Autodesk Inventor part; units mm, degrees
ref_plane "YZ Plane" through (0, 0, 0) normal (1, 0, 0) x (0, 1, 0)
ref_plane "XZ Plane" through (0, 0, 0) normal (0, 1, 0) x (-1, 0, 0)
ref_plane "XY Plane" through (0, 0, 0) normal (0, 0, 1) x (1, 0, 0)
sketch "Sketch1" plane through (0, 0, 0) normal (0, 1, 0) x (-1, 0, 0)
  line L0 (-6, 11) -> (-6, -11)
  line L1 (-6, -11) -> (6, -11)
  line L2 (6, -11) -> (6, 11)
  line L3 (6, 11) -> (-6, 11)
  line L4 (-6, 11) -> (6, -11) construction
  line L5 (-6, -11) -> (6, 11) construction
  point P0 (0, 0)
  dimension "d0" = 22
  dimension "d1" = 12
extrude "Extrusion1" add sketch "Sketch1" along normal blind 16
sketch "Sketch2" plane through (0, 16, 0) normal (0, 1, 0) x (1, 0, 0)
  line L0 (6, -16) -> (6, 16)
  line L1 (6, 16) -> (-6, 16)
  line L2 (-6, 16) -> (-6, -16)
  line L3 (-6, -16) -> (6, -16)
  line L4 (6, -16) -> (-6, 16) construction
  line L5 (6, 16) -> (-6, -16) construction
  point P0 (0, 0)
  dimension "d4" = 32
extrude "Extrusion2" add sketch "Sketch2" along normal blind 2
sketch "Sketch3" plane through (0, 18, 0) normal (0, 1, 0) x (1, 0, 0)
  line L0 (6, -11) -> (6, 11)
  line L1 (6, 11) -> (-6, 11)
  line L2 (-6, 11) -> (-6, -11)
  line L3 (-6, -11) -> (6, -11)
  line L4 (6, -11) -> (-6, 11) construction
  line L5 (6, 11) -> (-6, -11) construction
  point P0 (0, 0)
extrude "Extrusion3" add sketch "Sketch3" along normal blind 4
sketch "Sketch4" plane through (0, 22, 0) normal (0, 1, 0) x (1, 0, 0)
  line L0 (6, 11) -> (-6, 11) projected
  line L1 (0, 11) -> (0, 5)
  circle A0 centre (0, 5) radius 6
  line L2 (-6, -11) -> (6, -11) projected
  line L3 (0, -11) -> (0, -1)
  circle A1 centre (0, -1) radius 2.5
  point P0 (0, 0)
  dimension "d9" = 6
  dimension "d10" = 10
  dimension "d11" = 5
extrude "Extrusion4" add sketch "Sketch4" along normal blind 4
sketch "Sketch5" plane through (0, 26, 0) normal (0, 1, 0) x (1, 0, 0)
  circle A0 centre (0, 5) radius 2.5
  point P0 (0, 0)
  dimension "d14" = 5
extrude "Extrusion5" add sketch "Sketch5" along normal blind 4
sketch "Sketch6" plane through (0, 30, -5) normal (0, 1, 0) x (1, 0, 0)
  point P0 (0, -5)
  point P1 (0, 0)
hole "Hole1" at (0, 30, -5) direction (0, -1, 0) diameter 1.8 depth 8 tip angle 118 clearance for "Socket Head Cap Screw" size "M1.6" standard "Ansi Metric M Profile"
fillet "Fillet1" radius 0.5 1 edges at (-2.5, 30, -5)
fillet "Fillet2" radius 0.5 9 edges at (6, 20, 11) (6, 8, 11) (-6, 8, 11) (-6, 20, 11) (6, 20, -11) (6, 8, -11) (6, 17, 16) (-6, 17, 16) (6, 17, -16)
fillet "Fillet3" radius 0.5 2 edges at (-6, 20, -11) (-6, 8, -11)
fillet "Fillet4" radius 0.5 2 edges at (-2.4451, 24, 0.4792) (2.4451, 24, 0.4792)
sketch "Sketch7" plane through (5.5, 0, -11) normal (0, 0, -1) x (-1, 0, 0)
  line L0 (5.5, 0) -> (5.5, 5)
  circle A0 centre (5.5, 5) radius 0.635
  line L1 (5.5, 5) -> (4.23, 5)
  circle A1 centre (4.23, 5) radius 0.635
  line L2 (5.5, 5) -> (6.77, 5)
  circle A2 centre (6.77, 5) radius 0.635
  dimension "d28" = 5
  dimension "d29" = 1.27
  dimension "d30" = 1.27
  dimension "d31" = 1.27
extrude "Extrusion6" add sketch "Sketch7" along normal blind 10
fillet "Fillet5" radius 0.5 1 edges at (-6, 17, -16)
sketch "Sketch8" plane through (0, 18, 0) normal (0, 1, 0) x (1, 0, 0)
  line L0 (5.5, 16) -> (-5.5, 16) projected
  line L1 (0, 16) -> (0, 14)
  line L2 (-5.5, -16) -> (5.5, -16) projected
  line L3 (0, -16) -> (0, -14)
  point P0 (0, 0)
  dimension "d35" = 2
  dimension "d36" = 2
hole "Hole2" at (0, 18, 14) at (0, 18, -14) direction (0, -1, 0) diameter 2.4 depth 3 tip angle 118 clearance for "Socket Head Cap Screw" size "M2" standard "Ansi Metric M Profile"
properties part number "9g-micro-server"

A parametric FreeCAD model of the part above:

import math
import FreeCAD as App
import Part
import Sketcher

V = App.Vector
Q = App.Units.Quantity


def edges_at(feature, points):
    """Names of the edges that pass closest to the given points."""
    edges = feature.Shape.Edges
    near = lambda p: min(range(len(edges)), key=lambda i: edges[i].distToShape(Part.Vertex(*p))[0])
    return sorted({f"Edge{near(p) + 1}" for p in points})


def add_polygon(sketch, points):
    """Adds a closed chain of lines whose ends are joined by coincident constraints."""
    first, n = sketch.GeometryCount, len(points)
    for a, b in zip(points, points[1:] + points[:1]):
        sketch.addGeometry(Part.LineSegment(App.Vector(*a, 0), App.Vector(*b, 0)), False)
    for i in range(n):
        sketch.addConstraint(Sketcher.Constraint("Coincident", first + i, 2, first + (i + 1) % n, 1))

doc = App.newDocument("Part")
body = doc.addObject("PartDesign::Body", "Body")

# Sketch on XZ plane
sketch1 = body.newObject("Sketcher::SketchObject", "Sketch")
sketch1.AttachmentSupport = (doc.getObject("XZ_Plane"), [""])
sketch1.MapMode = "FlatFace"
add_polygon(sketch1, [(-6, 11), (6, 11), (6, -11), (-6, -11)])  # lines 0-3
sketch1.addConstraint(Sketcher.Constraint("Horizontal", 0))
sketch1.addConstraint(Sketcher.Constraint("Vertical", 1))
sketch1.addConstraint(Sketcher.Constraint("Horizontal", 2))
sketch1.addConstraint(Sketcher.Constraint("Vertical", 3))
sketch1.addConstraint(Sketcher.Constraint("Symmetric", 0, 2, 2, 2, -1, 1))
sketch1.addConstraint(Sketcher.Constraint("DistanceX", 0, 1, 0, 2, Q("12 mm")))
sketch1.addConstraint(Sketcher.Constraint("DistanceY", 1, 2, 1, 1, Q("22 mm")))
pad1 = body.newObject("PartDesign::Pad", "Pad")
pad1.Profile = sketch1
pad1.Length = 16
pad1.Reversed = True

# Sketch on XZ plane
sketch2 = body.newObject("Sketcher::SketchObject", "Sketch001")
sketch2.AttachmentSupport = (doc.getObject("XZ_Plane"), [""])
sketch2.MapMode = "FlatFace"
sketch2.AttachmentOffset = App.Placement(V(0, 0, -16), App.Rotation())
add_polygon(sketch2, [(-6, 16), (6, 16), (6, -16), (-6, -16)])  # lines 0-3
sketch2.addConstraint(Sketcher.Constraint("Horizontal", 0))
sketch2.addConstraint(Sketcher.Constraint("Vertical", 1))
sketch2.addConstraint(Sketcher.Constraint("Horizontal", 2))
sketch2.addConstraint(Sketcher.Constraint("Vertical", 3))
sketch2.addConstraint(Sketcher.Constraint("Symmetric", 0, 2, 2, 2, -1, 1))
sketch2.addConstraint(Sketcher.Constraint("DistanceY", 1, 2, 1, 1, Q("32 mm")))
sketch2.addConstraint(Sketcher.Constraint("DistanceX", 0, 1, 0, 2, Q("12 mm")))
pad2 = body.newObject("PartDesign::Pad", "Pad001")
pad2.Profile = sketch2
pad2.Length = 2
pad2.Reversed = True

# Sketch on XZ plane
sketch3 = body.newObject("Sketcher::SketchObject", "Sketch002")
sketch3.AttachmentSupport = (doc.getObject("XZ_Plane"), [""])
sketch3.MapMode = "FlatFace"
sketch3.AttachmentOffset = App.Placement(V(0, 0, -18), App.Rotation())
add_polygon(sketch3, [(-6, 11), (6, 11), (6, -11), (-6, -11)])  # lines 0-3
sketch3.addConstraint(Sketcher.Constraint("Horizontal", 0))
sketch3.addConstraint(Sketcher.Constraint("Vertical", 1))
sketch3.addConstraint(Sketcher.Constraint("Horizontal", 2))
sketch3.addConstraint(Sketcher.Constraint("Vertical", 3))
sketch3.addConstraint(Sketcher.Constraint("Symmetric", 0, 2, 2, 2, -1, 1))
sketch3.addConstraint(Sketcher.Constraint("DistanceX", 0, 1, 0, 2, Q("12 mm")))
sketch3.addConstraint(Sketcher.Constraint("DistanceY", 1, 2, 1, 1, Q("22 mm")))
pad3 = body.newObject("PartDesign::Pad", "Pad002")
pad3.Profile = sketch3
pad3.Length = 4
pad3.Reversed = True

# Sketch on XZ plane
sketch4 = body.newObject("Sketcher::SketchObject", "Sketch003")
sketch4.AttachmentSupport = (doc.getObject("XZ_Plane"), [""])
sketch4.MapMode = "FlatFace"
sketch4.AttachmentOffset = App.Placement(V(0, 0, -22), App.Rotation())
sketch4.addGeometry(Part.ArcOfCircle(Part.Circle(V(0, -5, 0), V(0, 0, 1), 6), math.radians(114.049398), math.radians(425.950602)), False)
sketch4.addGeometry(Part.ArcOfCircle(Part.Circle(V(0, 1, 0), V(0, 0, 1), 2.5), math.radians(-12.024699), math.radians(192.024699)), False)
sketch4.addConstraint(Sketcher.Constraint("Coincident", 0, 1, 1, 2))
sketch4.addConstraint(Sketcher.Constraint("Coincident", 1, 1, 0, 2))
sketch4.addConstraint(Sketcher.Constraint("Symmetric", 0, 1, 1, 1, -2))
sketch4.addConstraint(Sketcher.Constraint("Radius", 0, Q("6 mm")))
sketch4.addConstraint(Sketcher.Constraint("Radius", 1, Q("2.5 mm")))
sketch4.addConstraint(Sketcher.Constraint("DistanceY", 0, 3, -1, 1, Q("5 mm")))
sketch4.addConstraint(Sketcher.Constraint("DistanceY", 0, 3, 1, 3, Q("6 mm")))
pad4 = body.newObject("PartDesign::Pad", "Pad003")
pad4.Profile = sketch4
pad4.Length = 4
pad4.Reversed = True

# Sketch on XZ plane
sketch5 = body.newObject("Sketcher::SketchObject", "Sketch004")
sketch5.AttachmentSupport = (doc.getObject("XZ_Plane"), [""])
sketch5.MapMode = "FlatFace"
sketch5.AttachmentOffset = App.Placement(V(0, 0, -26), App.Rotation())
sketch5.addGeometry(Part.Circle(V(0, -5, 0), V(0, 0, 1), 2.5), False)
sketch5.addConstraint(Sketcher.Constraint("PointOnObject", 0, 3, -2))
sketch5.addConstraint(Sketcher.Constraint("Diameter", 0, Q("5 mm")))
sketch5.addConstraint(Sketcher.Constraint("DistanceY", 0, 3, -1, 1, Q("5 mm")))
pad5 = body.newObject("PartDesign::Pad", "Pad004")
pad5.Profile = sketch5
pad5.Length = 4
pad5.Reversed = True

# Sketch on XZ plane
sketch6 = body.newObject("Sketcher::SketchObject", "Sketch005")
sketch6.AttachmentSupport = (doc.getObject("XZ_Plane"), [""])
sketch6.MapMode = "FlatFace"
sketch6.AttachmentOffset = App.Placement(V(0, 0, -30), App.Rotation())
sketch6.addGeometry(Part.Circle(V(0, -5, 0), V(0, 0, 1), 0.9), False)
sketch6.addConstraint(Sketcher.Constraint("PointOnObject", 0, 3, -2))
sketch6.addConstraint(Sketcher.Constraint("Diameter", 0, Q("1.8 mm")))
sketch6.addConstraint(Sketcher.Constraint("DistanceY", 0, 3, -1, 1, Q("5 mm")))
doc.recompute()
hole = body.newObject("PartDesign::Hole", "Hole")
hole.Profile = sketch6
hole.ThreadType = "None"
hole.Diameter = 1.8
hole.DepthType = "Dimension"
hole.Depth = 8
hole.DrillPoint = "Angled"
hole.DrillPointAngle = 118
hole.Reversed = True
doc.recompute()

fillet = body.newObject("PartDesign::Fillet", "Fillet")
fillet.Base = (hole, edges_at(hole, [(-2.5, 30, -5)]))
fillet.Radius = 0.5
doc.recompute()

fillet2 = body.newObject("PartDesign::Fillet", "Fillet001")
fillet2.Base = (fillet, edges_at(fillet, [
    (6, 20, 11),
    (6, 8, 11),
    (-6, 8, 11),
    (-6, 20, 11),
    (6, 20, -11),
    (6, 8, -11),
    (6, 17, 16),
    (-6, 17, 16),
    (6, 17, -16),
]))
fillet2.Radius = 0.5
doc.recompute()

fillet3 = body.newObject("PartDesign::Fillet", "Fillet002")
fillet3.Base = (fillet2, edges_at(fillet2, [(-6, 20, -11), (-6, 8, -11)]))
fillet3.Radius = 0.5
doc.recompute()

fillet4 = body.newObject("PartDesign::Fillet", "Fillet003")
fillet4.Base = (fillet3, edges_at(fillet3, [(-2.445, 24, 0.479), (2.445, 24, 0.479)]))
fillet4.Radius = 0.5

# Sketch on XY plane
sketch7 = body.newObject("Sketcher::SketchObject", "Sketch006")
sketch7.AttachmentSupport = (doc.getObject("XY_Plane"), [""])
sketch7.MapMode = "FlatFace"
sketch7.AttachmentOffset = App.Placement(V(0, 0, -11), App.Rotation())
sketch7.addGeometry(Part.ArcOfCircle(Part.Circle(V(0, 5, 0), V(0, 0, 1), 0.635), math.radians(180), math.radians(360)), False)
sketch7.addGeometry(Part.ArcOfCircle(Part.Circle(V(0, 5, 0), V(0, 0, 1), 0.635), math.radians(0), math.radians(180)), False)
sketch7.addGeometry(Part.Circle(V(1.27, 5, 0), V(0, 0, 1), 0.635), False)
sketch7.addGeometry(Part.Circle(V(-1.27, 5, 0), V(0, 0, 1), 0.635), False)
sketch7.addConstraint(Sketcher.Constraint("Tangent", 0, 1, 1, 2))
sketch7.addConstraint(Sketcher.Constraint("Coincident", 1, 1, 0, 2))
sketch7.addConstraint(Sketcher.Constraint("Equal", 1, 2))
sketch7.addConstraint(Sketcher.Constraint("Equal", 2, 3))
sketch7.addConstraint(Sketcher.Constraint("Symmetric", 2, 3, 3, 3, -2))
sketch7.addConstraint(Sketcher.Constraint("Symmetric", 0, 1, 1, 1, -2))
sketch7.addConstraint(Sketcher.Constraint("Horizontal", 1, 3, 2, 3))
sketch7.addConstraint(Sketcher.Constraint("Horizontal", 3, 3, 0, 1))
sketch7.addConstraint(Sketcher.Constraint("Diameter", 2, Q("1.27 mm")))
sketch7.addConstraint(Sketcher.Constraint("DistanceY", -1, 1, 0, 3, Q("5 mm")))
sketch7.addConstraint(Sketcher.Constraint("DistanceX", -1, 1, 2, 3, Q("1.27 mm")))
pad6 = body.newObject("PartDesign::Pad", "Pad005")
pad6.Profile = sketch7
pad6.Length = 10
pad6.Reversed = True
doc.recompute()

fillet5 = body.newObject("PartDesign::Fillet", "Fillet004")
fillet5.Base = (pad6, edges_at(pad6, [(-6, 17, -16)]))
fillet5.Radius = 0.5

# Sketch on XZ plane
sketch8 = body.newObject("Sketcher::SketchObject", "Sketch007")
sketch8.AttachmentSupport = (doc.getObject("XZ_Plane"), [""])
sketch8.MapMode = "FlatFace"
sketch8.AttachmentOffset = App.Placement(V(0, 0, -18), App.Rotation())
sketch8.addGeometry(Part.Circle(V(0, 14, 0), V(0, 0, 1), 1.2), False)
sketch8.addGeometry(Part.Circle(V(0, -14, 0), V(0, 0, 1), 1.2), False)
sketch8.addConstraint(Sketcher.Constraint("Equal", 0, 1))
sketch8.addConstraint(Sketcher.Constraint("Symmetric", 0, 3, 1, 3, -1, 1))
sketch8.addConstraint(Sketcher.Constraint("PointOnObject", 0, 3, -2))
sketch8.addConstraint(Sketcher.Constraint("Diameter", 0, Q("2.4 mm")))
sketch8.addConstraint(Sketcher.Constraint("DistanceY", -1, 1, 0, 3, Q("14 mm")))
doc.recompute()
hole2 = body.newObject("PartDesign::Hole", "Hole001")
hole2.Profile = sketch8
hole2.ThreadType = "None"
hole2.Diameter = 2.4
hole2.DepthType = "Dimension"
hole2.Depth = 3
hole2.DrillPoint = "Angled"
hole2.DrillPointAngle = 118
hole2.Reversed = True

doc.recompute()
